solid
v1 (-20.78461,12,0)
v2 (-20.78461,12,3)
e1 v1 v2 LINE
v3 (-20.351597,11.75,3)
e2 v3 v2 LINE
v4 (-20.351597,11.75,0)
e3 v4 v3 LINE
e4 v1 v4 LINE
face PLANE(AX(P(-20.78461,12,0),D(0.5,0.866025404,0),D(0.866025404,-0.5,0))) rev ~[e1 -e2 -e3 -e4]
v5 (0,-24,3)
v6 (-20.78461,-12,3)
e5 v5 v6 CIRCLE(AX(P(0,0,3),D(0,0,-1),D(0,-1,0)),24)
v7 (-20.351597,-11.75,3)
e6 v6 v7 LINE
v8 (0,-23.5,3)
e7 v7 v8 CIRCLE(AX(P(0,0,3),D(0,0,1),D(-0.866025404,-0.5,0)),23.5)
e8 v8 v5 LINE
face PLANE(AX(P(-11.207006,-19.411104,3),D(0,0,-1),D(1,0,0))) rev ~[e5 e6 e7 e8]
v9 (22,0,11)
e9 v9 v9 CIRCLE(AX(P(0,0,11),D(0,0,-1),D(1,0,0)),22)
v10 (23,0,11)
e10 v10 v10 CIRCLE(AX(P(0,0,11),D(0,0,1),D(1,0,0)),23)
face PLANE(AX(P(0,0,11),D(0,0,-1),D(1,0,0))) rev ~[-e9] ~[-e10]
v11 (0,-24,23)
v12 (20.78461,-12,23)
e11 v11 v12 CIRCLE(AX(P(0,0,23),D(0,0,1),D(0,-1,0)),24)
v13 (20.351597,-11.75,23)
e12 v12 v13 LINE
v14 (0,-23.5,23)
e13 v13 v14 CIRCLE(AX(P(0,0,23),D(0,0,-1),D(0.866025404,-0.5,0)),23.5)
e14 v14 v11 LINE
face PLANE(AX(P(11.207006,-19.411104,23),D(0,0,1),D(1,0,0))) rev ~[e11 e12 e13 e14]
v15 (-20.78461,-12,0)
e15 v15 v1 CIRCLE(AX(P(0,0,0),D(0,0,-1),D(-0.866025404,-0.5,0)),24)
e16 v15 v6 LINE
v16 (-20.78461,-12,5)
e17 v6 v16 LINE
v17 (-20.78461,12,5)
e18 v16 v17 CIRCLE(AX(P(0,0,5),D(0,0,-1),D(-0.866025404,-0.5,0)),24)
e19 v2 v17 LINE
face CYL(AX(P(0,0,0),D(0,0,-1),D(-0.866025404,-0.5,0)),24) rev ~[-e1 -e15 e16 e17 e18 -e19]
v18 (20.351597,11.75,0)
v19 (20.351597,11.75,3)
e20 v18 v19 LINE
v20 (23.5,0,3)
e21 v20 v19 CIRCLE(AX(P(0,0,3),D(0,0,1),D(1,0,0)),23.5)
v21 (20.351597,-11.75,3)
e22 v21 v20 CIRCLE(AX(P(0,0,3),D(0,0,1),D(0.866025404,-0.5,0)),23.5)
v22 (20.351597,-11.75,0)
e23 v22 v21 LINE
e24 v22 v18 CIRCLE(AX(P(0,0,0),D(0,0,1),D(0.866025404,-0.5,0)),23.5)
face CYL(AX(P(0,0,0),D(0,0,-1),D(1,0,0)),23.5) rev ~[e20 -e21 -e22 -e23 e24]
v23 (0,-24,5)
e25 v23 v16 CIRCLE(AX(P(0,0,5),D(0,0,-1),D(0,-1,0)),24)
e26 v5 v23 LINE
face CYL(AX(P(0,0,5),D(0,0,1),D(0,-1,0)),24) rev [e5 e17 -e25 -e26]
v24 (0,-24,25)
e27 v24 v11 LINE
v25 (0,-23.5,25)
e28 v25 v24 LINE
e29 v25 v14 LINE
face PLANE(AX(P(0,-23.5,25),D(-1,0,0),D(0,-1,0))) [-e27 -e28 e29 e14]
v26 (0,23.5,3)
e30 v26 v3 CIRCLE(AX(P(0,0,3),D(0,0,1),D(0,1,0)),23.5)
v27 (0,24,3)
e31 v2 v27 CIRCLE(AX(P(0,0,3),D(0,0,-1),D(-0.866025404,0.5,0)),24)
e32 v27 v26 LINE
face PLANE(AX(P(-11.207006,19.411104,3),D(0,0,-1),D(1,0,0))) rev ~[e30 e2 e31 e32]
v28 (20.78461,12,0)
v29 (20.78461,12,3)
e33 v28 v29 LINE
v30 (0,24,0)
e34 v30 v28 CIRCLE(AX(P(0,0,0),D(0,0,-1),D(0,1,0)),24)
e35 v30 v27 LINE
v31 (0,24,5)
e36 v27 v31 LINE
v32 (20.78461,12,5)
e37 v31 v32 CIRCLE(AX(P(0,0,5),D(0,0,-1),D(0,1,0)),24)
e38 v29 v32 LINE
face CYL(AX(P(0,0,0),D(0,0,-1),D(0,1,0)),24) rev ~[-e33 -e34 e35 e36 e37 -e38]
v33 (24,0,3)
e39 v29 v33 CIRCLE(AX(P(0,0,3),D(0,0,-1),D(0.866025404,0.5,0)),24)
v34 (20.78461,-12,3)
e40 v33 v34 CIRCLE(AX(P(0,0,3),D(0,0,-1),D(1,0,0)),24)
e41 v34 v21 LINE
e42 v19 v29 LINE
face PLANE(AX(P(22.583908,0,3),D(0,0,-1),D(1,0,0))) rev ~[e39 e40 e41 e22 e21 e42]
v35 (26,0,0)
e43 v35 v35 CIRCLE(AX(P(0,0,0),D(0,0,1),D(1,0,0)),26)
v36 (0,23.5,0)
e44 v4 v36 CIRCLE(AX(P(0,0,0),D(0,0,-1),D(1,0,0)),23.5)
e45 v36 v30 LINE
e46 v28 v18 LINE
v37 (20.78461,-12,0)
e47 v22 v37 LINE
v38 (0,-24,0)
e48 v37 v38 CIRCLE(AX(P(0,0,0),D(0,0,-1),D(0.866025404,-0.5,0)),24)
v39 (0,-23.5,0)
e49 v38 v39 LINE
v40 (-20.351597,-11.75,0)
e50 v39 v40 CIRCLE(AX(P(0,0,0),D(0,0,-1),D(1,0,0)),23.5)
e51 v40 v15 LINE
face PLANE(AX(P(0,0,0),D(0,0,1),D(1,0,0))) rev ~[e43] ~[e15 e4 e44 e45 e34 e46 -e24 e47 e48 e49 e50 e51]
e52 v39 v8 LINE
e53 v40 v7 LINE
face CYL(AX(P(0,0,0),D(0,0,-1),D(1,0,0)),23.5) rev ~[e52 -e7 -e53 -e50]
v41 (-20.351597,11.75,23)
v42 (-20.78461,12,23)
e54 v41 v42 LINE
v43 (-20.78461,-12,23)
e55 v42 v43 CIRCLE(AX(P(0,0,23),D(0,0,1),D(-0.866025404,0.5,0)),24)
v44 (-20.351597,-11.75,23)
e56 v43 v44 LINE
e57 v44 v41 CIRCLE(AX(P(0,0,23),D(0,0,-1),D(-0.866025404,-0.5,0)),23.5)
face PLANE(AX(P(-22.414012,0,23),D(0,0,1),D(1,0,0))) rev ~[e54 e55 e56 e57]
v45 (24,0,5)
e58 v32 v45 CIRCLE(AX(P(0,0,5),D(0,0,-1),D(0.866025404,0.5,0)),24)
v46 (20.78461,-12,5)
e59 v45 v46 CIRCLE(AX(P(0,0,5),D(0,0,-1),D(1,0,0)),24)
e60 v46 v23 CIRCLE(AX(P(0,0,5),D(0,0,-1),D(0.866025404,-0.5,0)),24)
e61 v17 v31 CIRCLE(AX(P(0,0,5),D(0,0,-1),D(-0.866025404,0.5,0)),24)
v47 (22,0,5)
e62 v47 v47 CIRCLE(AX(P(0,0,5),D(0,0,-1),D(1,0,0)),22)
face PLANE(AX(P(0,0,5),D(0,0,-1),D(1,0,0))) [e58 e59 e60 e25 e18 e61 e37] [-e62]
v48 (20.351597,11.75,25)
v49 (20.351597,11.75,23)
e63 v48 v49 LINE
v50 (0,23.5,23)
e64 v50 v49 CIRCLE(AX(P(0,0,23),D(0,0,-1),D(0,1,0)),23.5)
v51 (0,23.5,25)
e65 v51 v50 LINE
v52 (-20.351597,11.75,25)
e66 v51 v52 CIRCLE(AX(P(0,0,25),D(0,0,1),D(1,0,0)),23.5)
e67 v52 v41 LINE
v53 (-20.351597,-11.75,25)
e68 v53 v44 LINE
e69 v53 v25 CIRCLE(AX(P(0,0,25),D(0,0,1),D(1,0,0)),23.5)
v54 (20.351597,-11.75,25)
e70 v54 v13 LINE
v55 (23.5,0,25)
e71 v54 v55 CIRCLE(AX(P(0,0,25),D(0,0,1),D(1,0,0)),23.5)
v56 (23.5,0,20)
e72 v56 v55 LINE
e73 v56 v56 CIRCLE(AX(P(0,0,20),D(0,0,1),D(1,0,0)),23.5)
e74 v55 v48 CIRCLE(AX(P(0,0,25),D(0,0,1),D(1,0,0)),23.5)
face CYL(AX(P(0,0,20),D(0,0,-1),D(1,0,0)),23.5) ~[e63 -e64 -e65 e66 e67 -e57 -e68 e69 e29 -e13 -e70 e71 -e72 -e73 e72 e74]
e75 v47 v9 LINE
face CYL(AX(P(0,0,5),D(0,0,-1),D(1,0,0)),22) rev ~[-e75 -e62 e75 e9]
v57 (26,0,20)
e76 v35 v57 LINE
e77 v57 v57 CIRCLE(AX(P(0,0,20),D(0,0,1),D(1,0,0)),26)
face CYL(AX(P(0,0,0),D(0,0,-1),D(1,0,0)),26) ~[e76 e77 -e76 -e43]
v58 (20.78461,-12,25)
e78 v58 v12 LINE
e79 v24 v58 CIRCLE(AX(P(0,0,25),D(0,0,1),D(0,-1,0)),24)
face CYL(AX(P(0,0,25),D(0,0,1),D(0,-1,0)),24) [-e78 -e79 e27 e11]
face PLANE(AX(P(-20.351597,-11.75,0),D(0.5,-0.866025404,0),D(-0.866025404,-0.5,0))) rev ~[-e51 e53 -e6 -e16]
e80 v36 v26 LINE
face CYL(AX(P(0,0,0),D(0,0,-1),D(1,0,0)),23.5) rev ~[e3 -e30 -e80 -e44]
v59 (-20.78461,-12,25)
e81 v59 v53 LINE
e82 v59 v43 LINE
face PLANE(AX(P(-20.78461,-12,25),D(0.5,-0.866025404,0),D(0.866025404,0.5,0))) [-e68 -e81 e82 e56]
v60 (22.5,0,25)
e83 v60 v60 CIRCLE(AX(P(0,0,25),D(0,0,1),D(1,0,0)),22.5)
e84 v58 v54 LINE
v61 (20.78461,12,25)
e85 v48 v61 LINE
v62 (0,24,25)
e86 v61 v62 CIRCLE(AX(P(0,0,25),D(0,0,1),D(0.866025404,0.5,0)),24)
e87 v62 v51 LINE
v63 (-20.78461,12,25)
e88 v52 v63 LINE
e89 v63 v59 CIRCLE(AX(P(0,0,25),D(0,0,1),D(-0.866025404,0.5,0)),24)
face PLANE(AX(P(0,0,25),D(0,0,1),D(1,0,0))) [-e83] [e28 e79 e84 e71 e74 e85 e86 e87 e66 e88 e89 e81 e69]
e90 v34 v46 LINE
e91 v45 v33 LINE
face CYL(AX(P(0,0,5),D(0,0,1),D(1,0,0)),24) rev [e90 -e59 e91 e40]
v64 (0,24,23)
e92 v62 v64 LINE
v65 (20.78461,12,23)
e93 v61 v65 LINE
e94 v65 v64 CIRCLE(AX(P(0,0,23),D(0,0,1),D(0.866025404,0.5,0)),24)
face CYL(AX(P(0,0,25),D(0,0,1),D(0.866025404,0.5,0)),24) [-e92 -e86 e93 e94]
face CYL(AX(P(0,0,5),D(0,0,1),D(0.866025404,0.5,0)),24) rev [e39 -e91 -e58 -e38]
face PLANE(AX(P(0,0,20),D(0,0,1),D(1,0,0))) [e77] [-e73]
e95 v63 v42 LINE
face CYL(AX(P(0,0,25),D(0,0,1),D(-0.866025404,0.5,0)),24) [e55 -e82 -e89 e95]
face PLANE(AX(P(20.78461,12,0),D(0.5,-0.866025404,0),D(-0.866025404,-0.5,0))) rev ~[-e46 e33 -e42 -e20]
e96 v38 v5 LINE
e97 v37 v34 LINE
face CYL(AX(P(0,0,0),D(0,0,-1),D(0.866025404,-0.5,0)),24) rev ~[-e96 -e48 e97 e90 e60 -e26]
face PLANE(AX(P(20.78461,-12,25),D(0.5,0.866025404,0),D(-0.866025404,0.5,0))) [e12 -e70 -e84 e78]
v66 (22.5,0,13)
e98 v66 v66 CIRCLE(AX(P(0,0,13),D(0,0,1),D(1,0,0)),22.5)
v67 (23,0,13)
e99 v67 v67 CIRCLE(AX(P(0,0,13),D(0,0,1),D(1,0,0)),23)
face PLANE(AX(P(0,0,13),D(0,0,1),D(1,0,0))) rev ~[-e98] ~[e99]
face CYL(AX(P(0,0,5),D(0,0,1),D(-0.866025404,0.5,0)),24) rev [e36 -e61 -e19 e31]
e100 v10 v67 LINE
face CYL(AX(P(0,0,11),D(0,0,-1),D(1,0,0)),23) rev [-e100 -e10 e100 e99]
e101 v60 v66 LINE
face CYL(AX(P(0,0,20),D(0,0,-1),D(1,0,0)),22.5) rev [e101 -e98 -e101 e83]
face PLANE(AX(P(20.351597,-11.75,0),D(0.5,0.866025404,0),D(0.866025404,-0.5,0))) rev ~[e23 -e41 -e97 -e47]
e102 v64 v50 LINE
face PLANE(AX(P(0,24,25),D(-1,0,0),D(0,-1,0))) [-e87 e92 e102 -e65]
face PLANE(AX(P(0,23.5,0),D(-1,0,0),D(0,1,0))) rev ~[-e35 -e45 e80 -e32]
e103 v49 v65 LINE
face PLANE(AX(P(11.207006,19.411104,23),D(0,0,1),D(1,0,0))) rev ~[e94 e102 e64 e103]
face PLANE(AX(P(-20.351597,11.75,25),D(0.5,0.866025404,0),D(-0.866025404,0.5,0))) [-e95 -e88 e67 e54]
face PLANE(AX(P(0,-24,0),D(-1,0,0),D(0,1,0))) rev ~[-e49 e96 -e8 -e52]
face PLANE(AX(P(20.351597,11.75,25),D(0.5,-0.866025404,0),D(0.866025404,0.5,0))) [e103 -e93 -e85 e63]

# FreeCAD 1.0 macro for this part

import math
import FreeCAD as App
import Part
import Sketcher

V = App.Vector
Q = App.Units.Quantity

doc = App.newDocument("Part")
body = doc.addObject("PartDesign::Body", "Body")

# Sketch on XY plane
sketch1 = body.newObject("Sketcher::SketchObject", "Sketch")
sketch1.AttachmentSupport = (doc.getObject("XY_Plane"), [""])
sketch1.MapMode = "FlatFace"
sketch1.addGeometry([
    Part.Circle(V(0, 0, 0), V(0, 0, 1), 26),
    Part.Circle(V(0, 0, 0), V(0, 0, 1), 22),
], False)
sketch1.addConstraint([
    Sketcher.Constraint("Coincident", 0, 3, -1, 1),
    Sketcher.Constraint("Coincident", 1, 3, -1, 1),
    Sketcher.Constraint("Diameter", 0, 52.0),
    Sketcher.Constraint("Diameter", 1, 45.0),
])
pad1 = body.newObject("PartDesign::Pad", "Pad")
pad1.Profile = sketch1
pad1.Length = 20

# Sketch on XY plane
sketch2 = body.newObject("Sketcher::SketchObject", "Sketch001")
sketch2.AttachmentSupport = (doc.getObject("XY_Plane"), [""])
sketch2.MapMode = "FlatFace"
sketch2.addGeometry([
    Part.Circle(V(0, 0, 0), V(0, 0, 1), 24),
    Part.Circle(V(0, 0, 0), V(0, 0, 1), 22),
], False)
sketch2.addConstraint([
    Sketcher.Constraint("Coincident", 0, 3, -1, 1),
    Sketcher.Constraint("Coincident", 1, 3, -1, 1),
    Sketcher.Constraint("Diameter", 0, 47.0),
    Sketcher.Constraint("Diameter", 1, 45.0),
])
pocket1 = body.newObject("PartDesign::Pocket", "Pocket")
pocket1.Profile = sketch2
pocket1.Length = 5
pocket1.Reversed = True

# Sketch on XY plane
sketch3 = body.newObject("Sketcher::SketchObject", "Sketch002")
sketch3.AttachmentSupport = (doc.getObject("XY_Plane"), [""])
sketch3.MapMode = "FlatFace"
sketch3.AttachmentOffset = App.Placement(V(0, 0, 20), App.Rotation())
sketch3.addGeometry([
    Part.Circle(V(0, 0, 0), V(0, 0, 1), 24),
    Part.Circle(V(0, 0, 0), V(0, 0, 1), 22),
], False)
sketch3.addConstraint([
    Sketcher.Constraint("Coincident", 0, 3, -1, 1),
    Sketcher.Constraint("Coincident", 1, 3, -1, 1),
    Sketcher.Constraint("Diameter", 0, 47.0),
    Sketcher.Constraint("Diameter", 1, 45.0),
])
pad2 = body.newObject("PartDesign::Pad", "Pad001")
pad2.Profile = sketch3
pad2.Length = 5

# Sketch on XY plane
sketch4 = body.newObject("Sketcher::SketchObject", "Sketch003")
sketch4.AttachmentSupport = (doc.getObject("XY_Plane"), [""])
sketch4.MapMode = "FlatFace"
sketch4.AttachmentOffset = App.Placement(V(0, 0, 25), App.Rotation())
sketch4.addGeometry([
    Part.LineSegment(V(-20.4, 11.8, 0), V(-20.8, 12, 0)),  # 0
    Part.ArcOfCircle(Part.Circle(V(0, 0, 0), V(0, 0, 1), 24), math.radians(150), math.radians(210)),  # 1
    Part.LineSegment(V(-20.8, -12, 0), V(-20.4, -11.8, 0)),  # 2
    Part.ArcOfCircle(Part.Circle(V(0, 0, 0), V(0, 0, 1), 23.5), math.radians(150), math.radians(210)),  # 3
    Part.LineSegment(V(20.4, 11.8, 0), V(20.8, 12, 0)),  # 4
    Part.ArcOfCircle(Part.Circle(V(0, 0, 0), V(0, 0, 1), 24), math.radians(30), math.radians(90)),  # 5
    Part.LineSegment(V(0, 24, 0), V(0, 23.5, 0)),  # 6
    Part.ArcOfCircle(Part.Circle(V(0, 0, 0), V(0, 0, 1), 23.5), math.radians(30), math.radians(90)),  # 7
    Part.ArcOfCircle(Part.Circle(V(0, 0, 0), V(0, 0, 1), 24), math.radians(-90), math.radians(-30)),  # 8
    Part.LineSegment(V(20.8, -12, 0), V(20.4, -11.8, 0)),  # 9
    Part.ArcOfCircle(Part.Circle(V(0, 0, 0), V(0, 0, 1), 23.5), math.radians(-90), math.radians(-30)),  # 10
    Part.LineSegment(V(0, -23.5, 0), V(0, -24, 0)),  # 11
], False)
sketch4.addConstraint([
    Sketcher.Constraint("Coincident", 0, 2, 1, 1),
    Sketcher.Constraint("Coincident", 1, 2, 2, 1),
    Sketcher.Constraint("Coincident", 2, 2, 3, 2),
    Sketcher.Constraint("Coincident", 3, 1, 0, 1),
    Sketcher.Constraint("Coincident", 4, 2, 5, 1),
    Sketcher.Constraint("Coincident", 5, 2, 6, 1),
    Sketcher.Constraint("Coincident", 6, 2, 7, 2),
    Sketcher.Constraint("Coincident", 7, 1, 4, 1),
    Sketcher.Constraint("Coincident", 8, 2, 9, 1),
    Sketcher.Constraint("Coincident", 9, 2, 10, 2),
    Sketcher.Constraint("Coincident", 10, 1, 11, 1),
    Sketcher.Constraint("Coincident", 11, 2, 8, 1),
    Sketcher.Constraint("Vertical", 6),
    Sketcher.Constraint("Vertical", 11),
    Sketcher.Constraint("Coincident", 1, 3, -1, 1),
    Sketcher.Constraint("Coincident", 3, 3, -1, 1),
    Sketcher.Constraint("Coincident", 5, 3, -1, 1),
    Sketcher.Constraint("Coincident", 7, 3, -1, 1),
    Sketcher.Constraint("Coincident", 8, 3, -1, 1),
    Sketcher.Constraint("Coincident", 10, 3, -1, 1),
    Sketcher.Constraint("Equal", 1, 5),
    Sketcher.Constraint("Equal", 3, 7),
    Sketcher.Constraint("Equal", 5, 8),
    Sketcher.Constraint("Equal", 7, 10),
    Sketcher.Constraint("PointOnObject", 5, 2, -2),
    Sketcher.Constraint("PointOnObject", 10, 1, -2),
    Sketcher.Constraint("Parallel", 2, 4),
    Sketcher.Constraint("Parallel", 0, 9),
    Sketcher.Constraint("Horizontal", 0, 2, 4, 2),
    Sketcher.Constraint("Horizontal", 3, 1, 7, 1),
    Sketcher.Constraint("Horizontal", 1, 2, 8, 2),
    Sketcher.Constraint("Vertical", 0, 2, 1, 2),
    Sketcher.Constraint("Radius", 1, 24.0),
    Sketcher.Constraint("Radius", 3, 23.5),
    Sketcher.Constraint("Angle", 0, Q("150 deg")),
    Sketcher.Constraint("DistanceY", -1, 1, 0, 2, 12.0),
])
pad3 = body.newObject("PartDesign::Pad", "Pad002")
pad3.Profile = sketch4
pad3.Length = 2
pad3.Reversed = True

# Sketch on XY plane
sketch5 = body.newObject("Sketcher::SketchObject", "Sketch004")
sketch5.AttachmentSupport = (doc.getObject("XY_Plane"), [""])
sketch5.MapMode = "FlatFace"
sketch5.addGeometry([
    Part.LineSegment(V(20.4, -11.8, 0), V(20.8, -12, 0)),  # 0
    Part.ArcOfCircle(Part.Circle(V(0, 0, 0), V(0, 0, 1), 24), math.radians(-90), math.radians(-30)),  # 1
    Part.LineSegment(V(0, -24, 0), V(0, -23.5, 0)),  # 2
    Part.ArcOfCircle(Part.Circle(V(0, 0, 0), V(0, 0, 1), 23.5), math.radians(-90), math.radians(-30)),  # 3
    Part.ArcOfCircle(Part.Circle(V(0, 0, 0), V(0, 0, 1), 24), math.radians(30), math.radians(90)),  # 4
    Part.LineSegment(V(20.8, 12, 0), V(20.4, 11.8, 0)),  # 5
    Part.ArcOfCircle(Part.Circle(V(0, 0, 0), V(0, 0, 1), 23.5), math.radians(30), math.radians(90)),  # 6
    Part.LineSegment(V(0, 23.5, 0), V(0, 24, 0)),  # 7
    Part.LineSegment(V(-20.4, -11.8, 0), V(-20.8, -12, 0)),  # 8
    Part.ArcOfCircle(Part.Circle(V(0, 0, 0), V(0, 0, 1), 24), math.radians(150), math.radians(210)),  # 9
    Part.LineSegment(V(-20.8, 12, 0), V(-20.4, 11.8, 0)),  # 10
    Part.ArcOfCircle(Part.Circle(V(0, 0, 0), V(0, 0, 1), 23.5), math.radians(150), math.radians(210)),  # 11
], False)
sketch5.addConstraint([
    Sketcher.Constraint("Coincident", 0, 2, 1, 2),
    Sketcher.Constraint("Coincident", 1, 1, 2, 1),
    Sketcher.Constraint("Coincident", 2, 2, 3, 1),
    Sketcher.Constraint("Coincident", 3, 2, 0, 1),
    Sketcher.Constraint("Coincident", 4, 1, 5, 1),
    Sketcher.Constraint("Coincident", 5, 2, 6, 1),
    Sketcher.Constraint("Coincident", 6, 2, 7, 1),
    Sketcher.Constraint("Coincident", 7, 2, 4, 2),
    Sketcher.Constraint("Coincident", 8, 2, 9, 2),
    Sketcher.Constraint("Coincident", 9, 1, 10, 1),
    Sketcher.Constraint("Coincident", 10, 2, 11, 1),
    Sketcher.Constraint("Coincident", 11, 2, 8, 1),
    Sketcher.Constraint("Vertical", 2),
    Sketcher.Constraint("Vertical", 7),
    Sketcher.Constraint("Coincident", 1, 3, -1, 1),
    Sketcher.Constraint("Coincident", 3, 3, -1, 1),
    Sketcher.Constraint("Coincident", 4, 3, -1, 1),
    Sketcher.Constraint("Coincident", 6, 3, -1, 1),
    Sketcher.Constraint("Coincident", 9, 3, -1, 1),
    Sketcher.Constraint("Coincident", 11, 3, -1, 1),
    Sketcher.Constraint("Equal", 1, 4),
    Sketcher.Constraint("Equal", 3, 6),
    Sketcher.Constraint("Equal", 4, 9),
    Sketcher.Constraint("Equal", 6, 11),
    Sketcher.Constraint("PointOnObject", 1, 1, -2),
    Sketcher.Constraint("PointOnObject", 6, 2, -2),
    Sketcher.Constraint("Parallel", 5, 8),
    Sketcher.Constraint("Parallel", 0, 10),
    Sketcher.Constraint("Horizontal", 0, 2, 8, 2),
    Sketcher.Constraint("Horizontal", 4, 1, 9, 1),
    Sketcher.Constraint("Horizontal", 5, 2, 10, 2),
    Sketcher.Constraint("Vertical", 0, 2, 4, 1),
    Sketcher.Constraint("Radius", 1, 24.0),
    Sketcher.Constraint("Radius", 3, 23.5),
    Sketcher.Constraint("Angle", 0, Q("-30 deg")),
    Sketcher.Constraint("DistanceY", 0, 2, -1, 1, 12.0),
])
pocket2 = body.newObject("PartDesign::Pocket", "Pocket001")
pocket2.Profile = sketch5
pocket2.Length = 5
pocket2.Reversed = True

# Sketch on XY plane
sketch6 = body.newObject("Sketcher::SketchObject", "Sketch005")
sketch6.AttachmentSupport = (doc.getObject("XY_Plane"), [""])
sketch6.MapMode = "FlatFace"
sketch6.AttachmentOffset = App.Placement(V(0, 0, 5), App.Rotation())
sketch6.addGeometry([
    Part.ArcOfCircle(Part.Circle(V(0, 0, 0), V(0, 0, 1), 23.5), math.radians(-30), math.radians(0)),  # 0
    Part.ArcOfCircle(Part.Circle(V(0, 0, 0), V(0, 0, 1), 23.5), math.radians(0), math.radians(30)),  # 1
    Part.LineSegment(V(20.4, 11.8, 0), V(20.8, 12, 0)),  # 2
    Part.ArcOfCircle(Part.Circle(V(0, 0, 0), V(0, 0, 1), 24), math.radians(0), math.radians(30)),  # 3
    Part.ArcOfCircle(Part.Circle(V(0, 0, 0), V(0, 0, 1), 24), math.radians(-30), math.radians(0)),  # 4
    Part.LineSegment(V(20.8, -12, 0), V(20.4, -11.8, 0)),  # 5
    Part.LineSegment(V(0, 24, 0), V(0, 23.5, 0)),  # 6
    Part.ArcOfCircle(Part.Circle(V(0, 0, 0), V(0, 0, 1), 23.5), math.radians(90), math.radians(150)),  # 7
    Part.LineSegment(V(-20.4, 11.8, 0), V(-20.8, 12, 0)),  # 8
    Part.ArcOfCircle(Part.Circle(V(0, 0, 0), V(0, 0, 1), 24), math.radians(90), math.radians(150)),  # 9
    Part.ArcOfCircle(Part.Circle(V(0, 0, 0), V(0, 0, 1), 23.5), math.radians(-150), math.radians(-90)),  # 10
    Part.LineSegment(V(0, -23.5, 0), V(0, -24, 0)),  # 11
    Part.ArcOfCircle(Part.Circle(V(0, 0, 0), V(0, 0, 1), 24), math.radians(-150), math.radians(-90)),  # 12
    Part.LineSegment(V(-20.8, -12, 0), V(-20.4, -11.8, 0)),  # 13
], False)
sketch6.addConstraint([
    Sketcher.Constraint("Tangent", 0, 2, 1, 1),
    Sketcher.Constraint("Coincident", 1, 2, 2, 1),
    Sketcher.Constraint("Coincident", 2, 2, 3, 2),
    Sketcher.Constraint("Tangent", 3, 1, 4, 2),
    Sketcher.Constraint("Coincident", 4, 1, 5, 1),
    Sketcher.Constraint("Coincident", 5, 2, 0, 1),
    Sketcher.Constraint("Coincident", 6, 2, 7, 1),
    Sketcher.Constraint("Coincident", 7, 2, 8, 1),
    Sketcher.Constraint("Coincident", 8, 2, 9, 2),
    Sketcher.Constraint("Coincident", 9, 1, 6, 1),
    Sketcher.Constraint("Coincident", 10, 2, 11, 1),
    Sketcher.Constraint("Coincident", 11, 2, 12, 2),
    Sketcher.Constraint("Coincident", 12, 1, 13, 1),
    Sketcher.Constraint("Coincident", 13, 2, 10, 1),
    Sketcher.Constraint("Vertical", 6),
    Sketcher.Constraint("Vertical", 11),
    Sketcher.Constraint("Coincident", 0, 3, -1, 1),
    Sketcher.Constraint("Coincident", 3, 3, -1, 1),
    Sketcher.Constraint("Coincident", 7, 3, -1, 1),
    Sketcher.Constraint("Coincident", 9, 3, -1, 1),
    Sketcher.Constraint("Coincident", 10, 3, -1, 1),
    Sketcher.Constraint("Coincident", 12, 3, -1, 1),
    Sketcher.Constraint("Equal", 0, 1),
    Sketcher.Constraint("Equal", 3, 4),
    Sketcher.Constraint("Equal", 1, 7),
    Sketcher.Constraint("Equal", 4, 9),
    Sketcher.Constraint("Equal", 7, 10),
    Sketcher.Constraint("Equal", 9, 12),
    Sketcher.Constraint("PointOnObject", 0, 2, -1),
    Sketcher.Constraint("PointOnObject", 3, 1, -1),
    Sketcher.Constraint("PointOnObject", 6, 2, -2),
    Sketcher.Constraint("PointOnObject", 10, 2, -2),
    Sketcher.Constraint("Parallel", 5, 8),
    Sketcher.Constraint("Parallel", 2, 13),
    Sketcher.Constraint("Horizontal", 1, 2, 7, 2),
    Sketcher.Constraint("Horizontal", 2, 2, 8, 2),
    Sketcher.Constraint("Horizontal", 4, 1, 12, 1),
    Sketcher.Constraint("Vertical", 2, 2, 4, 1),
    Sketcher.Constraint("Radius", 3, 24.0),
    Sketcher.Constraint("Radius", 0, 23.5),
    Sketcher.Constraint("Angle", 2, Q("30 deg")),
    Sketcher.Constraint("DistanceY", -1, 1, 2, 2, 12.0),
])
pocket3 = body.newObject("PartDesign::Pocket", "Pocket002")
pocket3.Profile = sketch6
pocket3.Length = 2

# Sketch on XY plane
sketch7 = body.newObject("Sketcher::SketchObject", "Sketch006")
sketch7.AttachmentSupport = (doc.getObject("XY_Plane"), [""])
sketch7.MapMode = "FlatFace"
sketch7.AttachmentOffset = App.Placement(V(0, 0, 5), App.Rotation())
sketch7.addGeometry([
    Part.Circle(V(0, 0, 0), V(0, 0, 1), 22),
    Part.Circle(V(0, 0, 0), V(0, 0, 1), 22),
], False)
sketch7.addConstraint([
    Sketcher.Constraint("Coincident", 0, 3, -1, 1),
    Sketcher.Constraint("Coincident", 1, 3, -1, 1),
    Sketcher.Constraint("Diameter", 0, 45.0),
    Sketcher.Constraint("Diameter", 1, 44.0),
])
pad4 = body.newObject("PartDesign::Pad", "Pad003")
pad4.Profile = sketch7
pad4.Length = 6

# Sketch on XY plane
sketch8 = body.newObject("Sketcher::SketchObject", "Sketch007")
sketch8.AttachmentSupport = (doc.getObject("XY_Plane"), [""])
sketch8.MapMode = "FlatFace"
sketch8.AttachmentOffset = App.Placement(V(0, 0, 11), App.Rotation())
sketch8.addGeometry([
    Part.Circle(V(0, 0, 0), V(0, 0, 1), 23),
    Part.Circle(V(0, 0, 0), V(0, 0, 1), 22),
], False)
sketch8.addConstraint([
    Sketcher.Constraint("Coincident", 0, 3, -1, 1),
    Sketcher.Constraint("Coincident", 1, 3, -1, 1),
    Sketcher.Constraint("Diameter", 0, 46.0),
    Sketcher.Constraint("Diameter", 1, 45.0),
])
pocket4 = body.newObject("PartDesign::Pocket", "Pocket003")
pocket4.Profile = sketch8
pocket4.Length = 2
pocket4.Reversed = True

doc.recompute()
